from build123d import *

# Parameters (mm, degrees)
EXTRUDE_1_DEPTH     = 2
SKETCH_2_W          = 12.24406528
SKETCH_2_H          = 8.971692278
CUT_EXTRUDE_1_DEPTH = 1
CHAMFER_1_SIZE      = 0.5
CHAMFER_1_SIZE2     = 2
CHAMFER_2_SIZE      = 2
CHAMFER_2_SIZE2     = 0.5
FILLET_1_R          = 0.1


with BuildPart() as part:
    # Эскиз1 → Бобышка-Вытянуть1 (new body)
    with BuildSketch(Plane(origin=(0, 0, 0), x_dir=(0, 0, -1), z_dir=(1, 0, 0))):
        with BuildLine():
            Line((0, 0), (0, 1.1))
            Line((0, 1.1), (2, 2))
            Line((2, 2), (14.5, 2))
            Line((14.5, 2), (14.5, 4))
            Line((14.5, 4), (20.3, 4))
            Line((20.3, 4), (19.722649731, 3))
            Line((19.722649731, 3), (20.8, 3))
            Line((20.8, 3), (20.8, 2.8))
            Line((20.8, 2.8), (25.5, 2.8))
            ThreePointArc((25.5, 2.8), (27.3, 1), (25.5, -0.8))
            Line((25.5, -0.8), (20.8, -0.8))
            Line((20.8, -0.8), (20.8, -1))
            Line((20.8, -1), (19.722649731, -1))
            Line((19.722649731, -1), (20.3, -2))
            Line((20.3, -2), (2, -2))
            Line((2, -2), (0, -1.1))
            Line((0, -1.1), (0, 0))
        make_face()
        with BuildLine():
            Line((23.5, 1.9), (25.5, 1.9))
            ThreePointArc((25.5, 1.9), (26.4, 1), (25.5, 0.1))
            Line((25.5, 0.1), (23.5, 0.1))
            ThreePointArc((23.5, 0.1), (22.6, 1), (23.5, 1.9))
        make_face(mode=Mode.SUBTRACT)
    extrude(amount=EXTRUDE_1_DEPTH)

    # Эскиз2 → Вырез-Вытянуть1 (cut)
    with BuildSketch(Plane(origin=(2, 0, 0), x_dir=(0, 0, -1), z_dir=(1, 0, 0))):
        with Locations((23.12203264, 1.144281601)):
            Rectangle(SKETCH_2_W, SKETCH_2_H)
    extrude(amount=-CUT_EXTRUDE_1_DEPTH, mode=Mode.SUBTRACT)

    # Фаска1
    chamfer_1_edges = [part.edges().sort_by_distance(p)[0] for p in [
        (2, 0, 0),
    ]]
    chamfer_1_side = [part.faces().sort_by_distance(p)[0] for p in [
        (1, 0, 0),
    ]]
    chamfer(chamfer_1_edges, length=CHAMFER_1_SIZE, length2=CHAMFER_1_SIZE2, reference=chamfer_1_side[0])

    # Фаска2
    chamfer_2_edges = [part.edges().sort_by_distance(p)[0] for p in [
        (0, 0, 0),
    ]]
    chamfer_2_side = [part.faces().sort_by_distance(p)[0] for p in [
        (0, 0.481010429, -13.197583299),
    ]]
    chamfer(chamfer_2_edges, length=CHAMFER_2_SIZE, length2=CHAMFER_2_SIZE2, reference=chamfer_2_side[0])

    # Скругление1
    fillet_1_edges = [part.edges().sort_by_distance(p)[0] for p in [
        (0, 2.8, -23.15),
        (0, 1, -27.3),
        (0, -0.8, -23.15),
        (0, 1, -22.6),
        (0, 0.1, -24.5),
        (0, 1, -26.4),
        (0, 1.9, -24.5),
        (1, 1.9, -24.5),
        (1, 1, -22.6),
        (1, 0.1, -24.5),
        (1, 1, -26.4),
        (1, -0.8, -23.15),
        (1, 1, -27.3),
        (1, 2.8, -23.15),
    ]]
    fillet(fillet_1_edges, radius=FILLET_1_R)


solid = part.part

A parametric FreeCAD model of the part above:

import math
import FreeCAD as App
import Part
import Sketcher
from FreeCAD import Vector
Q = App.Units.Quantity


def edges_at(feature, points):
    """Names of the edges that pass closest to the given points."""
    edges = feature.Shape.Edges
    near = lambda p: min(range(len(edges)), key=lambda i: edges[i].distToShape(Part.Vertex(*p))[0])
    return sorted({f"Edge{near(p) + 1}" for p in points})

doc = App.newDocument("Part")
body = doc.addObject("PartDesign::Body", "Body")

# Sketch on YZ plane
sketch1 = body.newObject("Sketcher::SketchObject", "Sketch")
sketch1.AttachmentSupport = (doc.getObject("YZ_Plane"), [""])
sketch1.MapMode = "FlatFace"
sketch1.addGeometry(Part.LineSegment(Vector(2, -2, 0), Vector(1.1, 0, 0)), False)
sketch1.addGeometry(Part.LineSegment(Vector(1.1, 0, 0), Vector(-1.1, 0, 0)), False)
sketch1.addGeometry(Part.LineSegment(Vector(-1.1, 0, 0), Vector(-2, -2, 0)), False)
sketch1.addGeometry(Part.LineSegment(Vector(-2, -2, 0), Vector(-2, -20.3, 0)), False)
sketch1.addGeometry(Part.LineSegment(Vector(-2, -20.3, 0), Vector(-1, -19.72, 0)), False)
sketch1.addGeometry(Part.LineSegment(Vector(-1, -19.72, 0), Vector(-1, -20.8, 0)), False)
sketch1.addGeometry(Part.LineSegment(Vector(-1, -20.8, 0), Vector(-0.8, -20.8, 0)), False)
sketch1.addGeometry(Part.LineSegment(Vector(-0.8, -20.8, 0), Vector(-0.8, -25.5, 0)), False)
sketch1.addGeometry(Part.ArcOfCircle(Part.Circle(Vector(1, -25.5, 0), Vector(0, 0, 1), 1.8), math.radians(180), math.radians(360)), False)
sketch1.addGeometry(Part.LineSegment(Vector(2.8, -25.5, 0), Vector(2.8, -20.8, 0)), False)
sketch1.addGeometry(Part.LineSegment(Vector(2.8, -20.8, 0), Vector(3, -20.8, 0)), False)
sketch1.addGeometry(Part.LineSegment(Vector(3, -20.8, 0), Vector(3, -19.72, 0)), False)
sketch1.addGeometry(Part.LineSegment(Vector(3, -19.72, 0), Vector(4, -20.3, 0)), False)
sketch1.addGeometry(Part.LineSegment(Vector(4, -20.3, 0), Vector(4, -14.5, 0)), False)
sketch1.addGeometry(Part.LineSegment(Vector(4, -14.5, 0), Vector(2, -14.5, 0)), False)
sketch1.addGeometry(Part.LineSegment(Vector(2, -14.5, 0), Vector(2, -2, 0)), False)
sketch1.addGeometry(Part.LineSegment(Vector(1.9, -23.5, 0), Vector(1.9, -25.5, 0)), False)
sketch1.addGeometry(Part.ArcOfCircle(Part.Circle(Vector(1, -25.5, 0), Vector(0, 0, 1), 0.9), math.radians(180), math.radians(360)), False)
sketch1.addGeometry(Part.LineSegment(Vector(0.1, -25.5, 0), Vector(0.1, -23.5, 0)), False)
sketch1.addGeometry(Part.ArcOfCircle(Part.Circle(Vector(1, -23.5, 0), Vector(0, 0, 1), 0.9), math.radians(0), math.radians(180)), False)
sketch1.addConstraint(Sketcher.Constraint("Coincident", 0, 2, 1, 1))
sketch1.addConstraint(Sketcher.Constraint("Coincident", 1, 2, 2, 1))
sketch1.addConstraint(Sketcher.Constraint("Coincident", 2, 2, 3, 1))
sketch1.addConstraint(Sketcher.Constraint("Coincident", 3, 2, 4, 1))
sketch1.addConstraint(Sketcher.Constraint("Coincident", 4, 2, 5, 1))
sketch1.addConstraint(Sketcher.Constraint("Coincident", 5, 2, 6, 1))
sketch1.addConstraint(Sketcher.Constraint("Coincident", 6, 2, 7, 1))
sketch1.addConstraint(Sketcher.Constraint("Tangent", 7, 2, 8, 1))
sketch1.addConstraint(Sketcher.Constraint("Tangent", 8, 2, 9, 1))
sketch1.addConstraint(Sketcher.Constraint("Coincident", 9, 2, 10, 1))
sketch1.addConstraint(Sketcher.Constraint("Coincident", 10, 2, 11, 1))
sketch1.addConstraint(Sketcher.Constraint("Coincident", 11, 2, 12, 1))
sketch1.addConstraint(Sketcher.Constraint("Coincident", 12, 2, 13, 1))
sketch1.addConstraint(Sketcher.Constraint("Coincident", 13, 2, 14, 1))
sketch1.addConstraint(Sketcher.Constraint("Coincident", 14, 2, 15, 1))
sketch1.addConstraint(Sketcher.Constraint("Coincident", 15, 2, 0, 1))
sketch1.addConstraint(Sketcher.Constraint("Tangent", 16, 2, 17, 2))
sketch1.addConstraint(Sketcher.Constraint("Tangent", 17, 1, 18, 1))
sketch1.addConstraint(Sketcher.Constraint("Tangent", 18, 2, 19, 2))
sketch1.addConstraint(Sketcher.Constraint("Tangent", 19, 1, 16, 1))
sketch1.addConstraint(Sketcher.Constraint("Horizontal", 1))
sketch1.addConstraint(Sketcher.Constraint("Vertical", 3))
sketch1.addConstraint(Sketcher.Constraint("Vertical", 5))
sketch1.addConstraint(Sketcher.Constraint("Horizontal", 6))
sketch1.addConstraint(Sketcher.Constraint("Vertical", 7))
sketch1.addConstraint(Sketcher.Constraint("Vertical", 9))
sketch1.addConstraint(Sketcher.Constraint("Horizontal", 10))
sketch1.addConstraint(Sketcher.Constraint("Vertical", 11))
sketch1.addConstraint(Sketcher.Constraint("Vertical", 13))
sketch1.addConstraint(Sketcher.Constraint("Horizontal", 14))
sketch1.addConstraint(Sketcher.Constraint("Vertical", 15))
sketch1.addConstraint(Sketcher.Constraint("Vertical", 16))
sketch1.addConstraint(Sketcher.Constraint("Vertical", 18))
sketch1.addConstraint(Sketcher.Constraint("Coincident", 17, 3, 8, 3))
sketch1.addConstraint(Sketcher.Constraint("Symmetric", 0, 2, 1, 2, -1, 1))
sketch1.addConstraint(Sketcher.Constraint("Symmetric", 2, 2, 15, 2, -2))
sketch1.addConstraint(Sketcher.Constraint("Horizontal", 6, 2, 9, 2))
sketch1.addConstraint(Sketcher.Constraint("Horizontal", 4, 2, 11, 2))
sketch1.addConstraint(Sketcher.Constraint("Horizontal", 3, 2, 12, 2))
sketch1.addConstraint(Sketcher.Constraint("Equal", 6, 10))
sketch1.addConstraint(Sketcher.Constraint("Equal", 14, 16))
sketch1.addConstraint(Sketcher.Constraint("Equal", 4, 12))
sketch1.addConstraint(Sketcher.Constraint("Radius", 8, 1.8))
sketch1.addConstraint(Sketcher.Constraint("Radius", 17, 0.9))
sketch1.addConstraint(Sketcher.Constraint("DistanceX", 14, 2, 14, 1, 2.0))
sketch1.addConstraint(Sketcher.Constraint("Angle", 4, Q("30 deg")))
sketch1.addConstraint(Sketcher.Constraint("DistanceX", 1, 2, 1, 1, 2.2))
sketch1.addConstraint(Sketcher.Constraint("DistanceX", 6, 1, 6, 2, 0.2))
sketch1.addConstraint(Sketcher.Constraint("DistanceY", 3, 2, 3, 1, 18.3))
sketch1.addConstraint(Sketcher.Constraint("DistanceY", 7, 2, 7, 1, 4.7))
sketch1.addConstraint(Sketcher.Constraint("DistanceY", 13, 1, 13, 2, 5.8))
sketch1.addConstraint(Sketcher.Constraint("DistanceX", 2, 2, -1, 1, 2.0))
sketch1.addConstraint(Sketcher.Constraint("DistanceY", 2, 2, -1, 1, 2.0))
sketch1.addConstraint(Sketcher.Constraint("DistanceY", 8, 3, -1, 1, 25.5))
pad1 = body.newObject("PartDesign::Pad", "Pad")
pad1.Profile = sketch1
pad1.Length = 2

# Sketch on YZ plane
sketch2 = body.newObject("Sketcher::SketchObject", "Sketch001")
sketch2.AttachmentSupport = (doc.getObject("YZ_Plane"), [""])
sketch2.MapMode = "FlatFace"
sketch2.AttachmentOffset = App.Placement(Vector(0, 0, 2), App.Rotation())
sketch2.addGeometry(Part.LineSegment(Vector(6, -17, 0), Vector(-3, -17, 0)), False)
sketch2.addGeometry(Part.LineSegment(Vector(-3, -17, 0), Vector(-3, -29, 0)), False)
sketch2.addGeometry(Part.LineSegment(Vector(-3, -29, 0), Vector(6, -29, 0)), False)
sketch2.addGeometry(Part.LineSegment(Vector(6, -29, 0), Vector(6, -17, 0)), False)
sketch2.addConstraint(Sketcher.Constraint("Coincident", 0, 2, 1, 1))
sketch2.addConstraint(Sketcher.Constraint("Coincident", 1, 2, 2, 1))
sketch2.addConstraint(Sketcher.Constraint("Coincident", 2, 2, 3, 1))
sketch2.addConstraint(Sketcher.Constraint("Coincident", 3, 2, 0, 1))
sketch2.addConstraint(Sketcher.Constraint("Horizontal", 0))
sketch2.addConstraint(Sketcher.Constraint("Vertical", 1))
sketch2.addConstraint(Sketcher.Constraint("Horizontal", 2))
sketch2.addConstraint(Sketcher.Constraint("Vertical", 3))
sketch2.addConstraint(Sketcher.Constraint("DistanceY", 0, 2, -1, 1, 17.0))
sketch2.addConstraint(Sketcher.Constraint("DistanceX", 0, 2, 0, 1, 8.971692))
sketch2.addConstraint(Sketcher.Constraint("DistanceY", 1, 2, 1, 1, 12.244065))
sketch2.addConstraint(Sketcher.Constraint("DistanceX", 0, 2, -1, 1, 3.341565))
pocket1 = body.newObject("PartDesign::Pocket", "Pocket")
pocket1.Profile = sketch2
pocket1.Length = 1
doc.recompute()

chamfer = body.newObject("PartDesign::Chamfer", "Chamfer")
chamfer.Base = (pocket1, edges_at(pocket1, [(2, 0, 0)]))
chamfer.ChamferType = "Two distances"
chamfer.Size = 0.5
chamfer.Size2 = 2
doc.recompute()

chamfer2 = body.newObject("PartDesign::Chamfer", "Chamfer001")
chamfer2.Base = (chamfer, edges_at(chamfer, [(0, 0, 0)]))
chamfer2.ChamferType = "Two distances"
chamfer2.Size = 2
chamfer2.Size2 = 0.5
chamfer2.FlipDirection = True
doc.recompute()

fillet = body.newObject("PartDesign::Fillet", "Fillet")
fillet.Base = (chamfer2, edges_at(chamfer2, [
    (0, 2.8, -23.15),
    (0, 1, -27.3),
    (0, -0.8, -23.15),
    (0, 1, -22.6),
    (0, 0.1, -24.5),
    (0, 1, -26.4),
    (0, 1.9, -24.5),
    (1, 1.9, -24.5),
    (1, 1, -22.6),
    (1, 0.1, -24.5),
    (1, 1, -26.4),
    (1, -0.8, -23.15),
    (1, 1, -27.3),
    (1, 2.8, -23.15),
]))
fillet.Radius = 0.1

doc.recompute()
